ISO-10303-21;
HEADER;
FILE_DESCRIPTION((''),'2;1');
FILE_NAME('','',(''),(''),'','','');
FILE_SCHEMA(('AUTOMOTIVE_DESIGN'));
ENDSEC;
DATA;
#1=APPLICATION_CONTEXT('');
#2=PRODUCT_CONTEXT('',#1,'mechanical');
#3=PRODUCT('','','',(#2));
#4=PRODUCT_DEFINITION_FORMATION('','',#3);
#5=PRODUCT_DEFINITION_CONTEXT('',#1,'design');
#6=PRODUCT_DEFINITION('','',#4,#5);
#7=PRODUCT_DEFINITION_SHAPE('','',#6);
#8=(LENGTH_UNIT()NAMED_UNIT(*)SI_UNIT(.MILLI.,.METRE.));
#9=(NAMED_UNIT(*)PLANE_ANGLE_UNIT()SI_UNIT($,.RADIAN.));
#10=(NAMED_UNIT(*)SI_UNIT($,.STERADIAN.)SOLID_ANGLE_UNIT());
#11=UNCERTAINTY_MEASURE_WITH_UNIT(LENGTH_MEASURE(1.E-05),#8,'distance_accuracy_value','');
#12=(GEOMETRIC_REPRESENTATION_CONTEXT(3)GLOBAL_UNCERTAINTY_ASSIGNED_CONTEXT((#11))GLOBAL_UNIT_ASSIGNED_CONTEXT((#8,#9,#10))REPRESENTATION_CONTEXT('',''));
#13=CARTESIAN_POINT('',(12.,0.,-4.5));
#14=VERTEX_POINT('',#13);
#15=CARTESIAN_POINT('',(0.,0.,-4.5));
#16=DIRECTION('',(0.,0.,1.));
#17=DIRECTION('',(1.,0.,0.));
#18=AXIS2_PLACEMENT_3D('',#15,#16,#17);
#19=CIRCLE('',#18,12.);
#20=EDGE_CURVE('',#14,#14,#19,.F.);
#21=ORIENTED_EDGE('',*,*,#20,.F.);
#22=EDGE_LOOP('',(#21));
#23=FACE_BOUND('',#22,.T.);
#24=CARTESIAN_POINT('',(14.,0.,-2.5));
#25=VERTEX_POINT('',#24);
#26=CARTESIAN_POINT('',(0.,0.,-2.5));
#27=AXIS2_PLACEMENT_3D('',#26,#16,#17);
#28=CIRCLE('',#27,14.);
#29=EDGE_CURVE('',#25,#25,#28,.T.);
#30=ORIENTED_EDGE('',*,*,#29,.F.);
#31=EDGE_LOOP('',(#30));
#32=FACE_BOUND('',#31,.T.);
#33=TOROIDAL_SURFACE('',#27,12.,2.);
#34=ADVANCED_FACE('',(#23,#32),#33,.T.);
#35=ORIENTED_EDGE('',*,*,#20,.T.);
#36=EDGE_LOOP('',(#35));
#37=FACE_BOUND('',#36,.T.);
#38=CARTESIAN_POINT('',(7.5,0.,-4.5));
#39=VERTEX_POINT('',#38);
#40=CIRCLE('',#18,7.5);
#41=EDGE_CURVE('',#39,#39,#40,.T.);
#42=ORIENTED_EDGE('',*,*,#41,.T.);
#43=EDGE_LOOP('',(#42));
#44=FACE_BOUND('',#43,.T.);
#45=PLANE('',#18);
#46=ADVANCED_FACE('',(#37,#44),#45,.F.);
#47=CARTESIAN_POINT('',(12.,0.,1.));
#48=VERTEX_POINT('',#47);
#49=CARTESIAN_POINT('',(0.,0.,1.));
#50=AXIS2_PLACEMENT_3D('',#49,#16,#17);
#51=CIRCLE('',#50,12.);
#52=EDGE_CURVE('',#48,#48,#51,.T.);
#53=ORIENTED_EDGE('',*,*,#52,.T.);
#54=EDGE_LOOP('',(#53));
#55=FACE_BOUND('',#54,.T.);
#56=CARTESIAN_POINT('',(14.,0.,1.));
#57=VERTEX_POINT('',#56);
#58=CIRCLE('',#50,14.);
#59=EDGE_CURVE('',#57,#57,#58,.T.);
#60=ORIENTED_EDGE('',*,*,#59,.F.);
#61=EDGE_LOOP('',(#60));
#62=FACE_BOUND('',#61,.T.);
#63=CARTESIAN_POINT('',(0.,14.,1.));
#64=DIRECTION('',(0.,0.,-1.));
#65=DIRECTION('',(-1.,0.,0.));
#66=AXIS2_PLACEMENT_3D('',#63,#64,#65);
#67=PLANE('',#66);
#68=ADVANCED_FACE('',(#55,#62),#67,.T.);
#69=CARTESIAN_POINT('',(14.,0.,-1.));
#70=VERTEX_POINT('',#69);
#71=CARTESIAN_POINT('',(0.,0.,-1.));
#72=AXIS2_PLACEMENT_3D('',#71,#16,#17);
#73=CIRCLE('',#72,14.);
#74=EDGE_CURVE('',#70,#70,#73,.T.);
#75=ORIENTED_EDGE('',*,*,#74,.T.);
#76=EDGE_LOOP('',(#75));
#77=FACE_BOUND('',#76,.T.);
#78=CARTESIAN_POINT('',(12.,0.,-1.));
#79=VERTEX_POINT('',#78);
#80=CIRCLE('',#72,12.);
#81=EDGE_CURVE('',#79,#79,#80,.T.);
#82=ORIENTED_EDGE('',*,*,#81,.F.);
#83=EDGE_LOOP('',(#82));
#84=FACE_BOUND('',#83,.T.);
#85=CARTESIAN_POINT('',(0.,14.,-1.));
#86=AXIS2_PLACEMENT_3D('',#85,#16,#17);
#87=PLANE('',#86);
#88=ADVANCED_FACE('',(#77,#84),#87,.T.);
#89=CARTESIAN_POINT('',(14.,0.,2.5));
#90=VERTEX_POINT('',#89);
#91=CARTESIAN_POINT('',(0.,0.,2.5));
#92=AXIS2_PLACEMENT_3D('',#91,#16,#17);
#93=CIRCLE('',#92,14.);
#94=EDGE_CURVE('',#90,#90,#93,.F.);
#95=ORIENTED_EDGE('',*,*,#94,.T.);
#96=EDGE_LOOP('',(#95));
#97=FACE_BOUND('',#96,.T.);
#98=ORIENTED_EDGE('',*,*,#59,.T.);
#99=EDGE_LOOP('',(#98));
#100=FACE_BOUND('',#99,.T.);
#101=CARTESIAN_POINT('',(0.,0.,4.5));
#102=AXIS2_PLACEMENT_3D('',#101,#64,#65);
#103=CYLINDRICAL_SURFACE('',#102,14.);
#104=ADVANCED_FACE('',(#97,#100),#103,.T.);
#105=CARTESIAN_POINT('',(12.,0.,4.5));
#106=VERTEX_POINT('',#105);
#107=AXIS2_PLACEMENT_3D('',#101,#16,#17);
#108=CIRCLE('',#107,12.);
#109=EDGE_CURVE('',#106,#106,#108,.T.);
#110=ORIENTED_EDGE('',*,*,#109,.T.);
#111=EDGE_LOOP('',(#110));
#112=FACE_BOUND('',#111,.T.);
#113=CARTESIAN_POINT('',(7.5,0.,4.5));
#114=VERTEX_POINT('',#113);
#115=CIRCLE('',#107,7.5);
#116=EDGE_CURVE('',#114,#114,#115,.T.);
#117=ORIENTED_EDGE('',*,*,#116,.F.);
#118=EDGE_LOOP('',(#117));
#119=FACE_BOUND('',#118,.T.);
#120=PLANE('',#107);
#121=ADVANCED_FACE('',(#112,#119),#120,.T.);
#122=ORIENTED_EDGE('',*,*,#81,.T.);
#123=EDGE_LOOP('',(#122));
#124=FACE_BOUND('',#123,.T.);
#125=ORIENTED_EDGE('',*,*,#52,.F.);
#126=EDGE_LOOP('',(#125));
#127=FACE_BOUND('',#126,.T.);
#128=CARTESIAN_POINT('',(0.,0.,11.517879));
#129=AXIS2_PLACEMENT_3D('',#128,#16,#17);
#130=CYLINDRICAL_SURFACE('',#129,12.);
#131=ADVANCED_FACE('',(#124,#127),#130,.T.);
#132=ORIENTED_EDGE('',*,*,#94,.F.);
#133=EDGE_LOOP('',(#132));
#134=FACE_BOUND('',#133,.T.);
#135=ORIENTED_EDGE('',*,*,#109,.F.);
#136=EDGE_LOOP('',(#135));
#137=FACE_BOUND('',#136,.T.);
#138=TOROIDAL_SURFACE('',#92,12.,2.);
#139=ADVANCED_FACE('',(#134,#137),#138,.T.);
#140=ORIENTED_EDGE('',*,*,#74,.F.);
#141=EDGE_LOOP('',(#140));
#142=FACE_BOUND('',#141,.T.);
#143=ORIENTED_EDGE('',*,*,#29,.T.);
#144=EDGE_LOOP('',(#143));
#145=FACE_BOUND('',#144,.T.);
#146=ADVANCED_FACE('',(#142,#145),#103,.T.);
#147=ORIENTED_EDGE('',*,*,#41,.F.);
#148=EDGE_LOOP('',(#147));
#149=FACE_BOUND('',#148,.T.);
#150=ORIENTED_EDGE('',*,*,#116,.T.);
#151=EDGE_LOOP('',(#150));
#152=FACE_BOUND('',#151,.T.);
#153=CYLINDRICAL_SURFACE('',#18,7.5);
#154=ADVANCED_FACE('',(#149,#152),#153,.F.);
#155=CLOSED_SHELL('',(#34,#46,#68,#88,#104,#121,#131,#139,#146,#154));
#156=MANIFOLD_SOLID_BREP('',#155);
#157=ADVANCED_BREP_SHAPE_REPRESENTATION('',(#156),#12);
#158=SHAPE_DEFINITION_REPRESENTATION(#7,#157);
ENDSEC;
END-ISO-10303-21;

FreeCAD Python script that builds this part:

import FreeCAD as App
import Part
import Sketcher


def edges_at(feature, points):
    """Names of the edges that pass closest to the given points."""
    edges = feature.Shape.Edges
    near = lambda p: min(range(len(edges)), key=lambda i: edges[i].distToShape(Part.Vertex(*p))[0])
    return sorted({f"Edge{near(p) + 1}" for p in points})

doc = App.newDocument("Part")
body = doc.addObject("PartDesign::Body", "Body")

# Sketch on XY plane
sketch1 = body.newObject("Sketcher::SketchObject", "Sketch")
sketch1.AttachmentSupport = (doc.getObject("XY_Plane"), [""])
sketch1.MapMode = "FlatFace"
sketch1.addGeometry(Part.Circle(App.Vector(0, 0, 0), App.Vector(0, 0, 1), 14), False)
sketch1.addConstraint([
    Sketcher.Constraint("Coincident", 0, 3, -1, 1),
    Sketcher.Constraint("Diameter", 0, 28.0),
])
pad1 = body.newObject("PartDesign::Pad", "Pad")
pad1.Profile = sketch1
pad1.Length = 9
pad1.Midplane = True
doc.recompute()

fillet = body.newObject("PartDesign::Fillet", "Fillet")
fillet.Base = (pad1, edges_at(pad1, [(-14, 0, -4.5), (-14, 0, 4.5)]))
fillet.Radius = 2

# Sketch on YZ plane
sketch2 = body.newObject("Sketcher::SketchObject", "Sketch001")
sketch2.AttachmentSupport = (doc.getObject("YZ_Plane"), [""])
sketch2.MapMode = "FlatFace"
sketch2.addGeometry([
    Part.LineSegment(App.Vector(14, 1, 0), App.Vector(12, 1, 0)),
    Part.LineSegment(App.Vector(12, 1, 0), App.Vector(12, -1, 0)),
    Part.LineSegment(App.Vector(12, -1, 0), App.Vector(14, -1, 0)),
    Part.LineSegment(App.Vector(14, -1, 0), App.Vector(14, 1, 0)),
], False)
sketch2.addConstraint([
    Sketcher.Constraint("Coincident", 0, 2, 1, 1),
    Sketcher.Constraint("Coincident", 1, 2, 2, 1),
    Sketcher.Constraint("Coincident", 2, 2, 3, 1),
    Sketcher.Constraint("Coincident", 3, 2, 0, 1),
    Sketcher.Constraint("Horizontal", 0),
    Sketcher.Constraint("Vertical", 1),
    Sketcher.Constraint("Horizontal", 2),
    Sketcher.Constraint("Vertical", 3),
    Sketcher.Constraint("Equal", 2, 1),
    Sketcher.Constraint("DistanceX", 0, 2, 0, 1, 2.0),
    Sketcher.Constraint("DistanceX", -1, 1, 0, 2, 12.0),
    Sketcher.Constraint("DistanceY", -1, 1, 0, 2, 1.0),
])
groove = body.newObject("PartDesign::Groove", "Groove")
groove.Profile = sketch2
groove.ReferenceAxis = (sketch2, ["V_Axis"])
groove.Angle = 360

# Sketch on XY plane
sketch3 = body.newObject("Sketcher::SketchObject", "Sketch002")
sketch3.AttachmentSupport = (doc.getObject("XY_Plane"), [""])
sketch3.MapMode = "FlatFace"
sketch3.AttachmentOffset = App.Placement(App.Vector(0, 0, 4.5), App.Rotation())
sketch3.addGeometry(Part.Circle(App.Vector(0, 0, 0), App.Vector(0, 0, 1), 7.5), False)
sketch3.addConstraint([
    Sketcher.Constraint("Coincident", 0, 3, -1, 1),
    Sketcher.Constraint("Diameter", 0, 15.0),
])
pocket1 = body.newObject("PartDesign::Pocket", "Pocket")
pocket1.Profile = sketch3
pocket1.Type = "ThroughAll"

doc.recompute()
